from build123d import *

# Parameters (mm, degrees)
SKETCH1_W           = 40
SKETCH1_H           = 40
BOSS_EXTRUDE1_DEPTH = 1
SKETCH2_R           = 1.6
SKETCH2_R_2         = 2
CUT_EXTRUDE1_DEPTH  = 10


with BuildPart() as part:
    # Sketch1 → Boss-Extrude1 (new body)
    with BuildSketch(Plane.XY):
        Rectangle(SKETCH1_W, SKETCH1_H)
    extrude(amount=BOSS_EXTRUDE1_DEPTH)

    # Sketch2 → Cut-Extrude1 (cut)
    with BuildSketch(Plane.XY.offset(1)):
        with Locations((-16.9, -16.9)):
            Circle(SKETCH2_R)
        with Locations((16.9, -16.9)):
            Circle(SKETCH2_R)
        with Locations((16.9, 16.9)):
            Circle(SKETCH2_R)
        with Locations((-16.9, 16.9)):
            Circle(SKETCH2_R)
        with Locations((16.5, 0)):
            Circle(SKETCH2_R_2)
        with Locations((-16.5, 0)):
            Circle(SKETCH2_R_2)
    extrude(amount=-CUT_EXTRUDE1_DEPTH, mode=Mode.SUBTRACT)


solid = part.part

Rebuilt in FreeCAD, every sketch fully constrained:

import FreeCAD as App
import Part
import Sketcher

V = App.Vector


def add_polygon(sketch, points):
    """Adds a closed chain of lines whose ends are joined by coincident constraints."""
    first, n = sketch.GeometryCount, len(points)
    for a, b in zip(points, points[1:] + points[:1]):
        sketch.addGeometry(Part.LineSegment(App.Vector(*a, 0), App.Vector(*b, 0)), False)
    for i in range(n):
        sketch.addConstraint(Sketcher.Constraint("Coincident", first + i, 2, first + (i + 1) % n, 1))

doc = App.newDocument("Part")
body = doc.addObject("PartDesign::Body", "Body")

# Sketch on XY plane
sketch1 = body.newObject("Sketcher::SketchObject", "Sketch")
sketch1.AttachmentSupport = (doc.getObject("XY_Plane"), [""])
sketch1.MapMode = "FlatFace"
add_polygon(sketch1, [(-20, 20), (-20, -20), (20, -20), (20, 20)])  # lines 0-3
sketch1.addConstraint(Sketcher.Constraint("Vertical", 0))
sketch1.addConstraint(Sketcher.Constraint("Horizontal", 1))
sketch1.addConstraint(Sketcher.Constraint("Vertical", 2))
sketch1.addConstraint(Sketcher.Constraint("Horizontal", 3))
sketch1.addConstraint(Sketcher.Constraint("Symmetric", 0, 2, 2, 2, -1, 1))
sketch1.addConstraint(Sketcher.Constraint("Equal", 3, 0))
sketch1.addConstraint(Sketcher.Constraint("DistanceX", 1, 1, 1, 2, 40.0))
pad1 = body.newObject("PartDesign::Pad", "Pad")
pad1.Profile = sketch1
pad1.Length = 1

# Sketch on XY plane
sketch2 = body.newObject("Sketcher::SketchObject", "Sketch001")
sketch2.AttachmentSupport = (doc.getObject("XY_Plane"), [""])
sketch2.MapMode = "FlatFace"
sketch2.AttachmentOffset = App.Placement(V(0, 0, 1), App.Rotation())
sketch2.addGeometry(Part.Circle(V(-16.9, -16.9, 0), V(0, 0, 1), 1.6), False)
sketch2.addGeometry(Part.Circle(V(16.9, -16.9, 0), V(0, 0, 1), 1.6), False)
sketch2.addGeometry(Part.Circle(V(16.9, 16.9, 0), V(0, 0, 1), 1.6), False)
sketch2.addGeometry(Part.Circle(V(-16.9, 16.9, 0), V(0, 0, 1), 1.6), False)
sketch2.addGeometry(Part.Circle(V(16.5, 0, 0), V(0, 0, 1), 2), False)
sketch2.addGeometry(Part.Circle(V(-16.5, 0, 0), V(0, 0, 1), 2), False)
sketch2.addConstraint(Sketcher.Constraint("Equal", 0, 1))
sketch2.addConstraint(Sketcher.Constraint("Equal", 1, 2))
sketch2.addConstraint(Sketcher.Constraint("Equal", 2, 3))
sketch2.addConstraint(Sketcher.Constraint("Equal", 4, 5))
sketch2.addConstraint(Sketcher.Constraint("Symmetric", 0, 3, 2, 3, -1, 1))
sketch2.addConstraint(Sketcher.Constraint("Symmetric", 1, 3, 3, 3, -1, 1))
sketch2.addConstraint(Sketcher.Constraint("Symmetric", 4, 3, 5, 3, -1, 1))
sketch2.addConstraint(Sketcher.Constraint("Symmetric", 0, 3, 1, 3, -2))
sketch2.addConstraint(Sketcher.Constraint("PointOnObject", 4, 3, -1))
sketch2.addConstraint(Sketcher.Constraint("Diameter", 4, 4.0))
sketch2.addConstraint(Sketcher.Constraint("Diameter", 0, 3.2))
sketch2.addConstraint(Sketcher.Constraint("DistanceX", 5, 3, 4, 3, 33.0))
sketch2.addConstraint(Sketcher.Constraint("DistanceX", 0, 3, -1, 1, 16.9))
sketch2.addConstraint(Sketcher.Constraint("DistanceY", 0, 3, -1, 1, 16.9))
pocket1 = body.newObject("PartDesign::Pocket", "Pocket")
pocket1.Profile = sketch2
pocket1.Length = 10

doc.recompute()
